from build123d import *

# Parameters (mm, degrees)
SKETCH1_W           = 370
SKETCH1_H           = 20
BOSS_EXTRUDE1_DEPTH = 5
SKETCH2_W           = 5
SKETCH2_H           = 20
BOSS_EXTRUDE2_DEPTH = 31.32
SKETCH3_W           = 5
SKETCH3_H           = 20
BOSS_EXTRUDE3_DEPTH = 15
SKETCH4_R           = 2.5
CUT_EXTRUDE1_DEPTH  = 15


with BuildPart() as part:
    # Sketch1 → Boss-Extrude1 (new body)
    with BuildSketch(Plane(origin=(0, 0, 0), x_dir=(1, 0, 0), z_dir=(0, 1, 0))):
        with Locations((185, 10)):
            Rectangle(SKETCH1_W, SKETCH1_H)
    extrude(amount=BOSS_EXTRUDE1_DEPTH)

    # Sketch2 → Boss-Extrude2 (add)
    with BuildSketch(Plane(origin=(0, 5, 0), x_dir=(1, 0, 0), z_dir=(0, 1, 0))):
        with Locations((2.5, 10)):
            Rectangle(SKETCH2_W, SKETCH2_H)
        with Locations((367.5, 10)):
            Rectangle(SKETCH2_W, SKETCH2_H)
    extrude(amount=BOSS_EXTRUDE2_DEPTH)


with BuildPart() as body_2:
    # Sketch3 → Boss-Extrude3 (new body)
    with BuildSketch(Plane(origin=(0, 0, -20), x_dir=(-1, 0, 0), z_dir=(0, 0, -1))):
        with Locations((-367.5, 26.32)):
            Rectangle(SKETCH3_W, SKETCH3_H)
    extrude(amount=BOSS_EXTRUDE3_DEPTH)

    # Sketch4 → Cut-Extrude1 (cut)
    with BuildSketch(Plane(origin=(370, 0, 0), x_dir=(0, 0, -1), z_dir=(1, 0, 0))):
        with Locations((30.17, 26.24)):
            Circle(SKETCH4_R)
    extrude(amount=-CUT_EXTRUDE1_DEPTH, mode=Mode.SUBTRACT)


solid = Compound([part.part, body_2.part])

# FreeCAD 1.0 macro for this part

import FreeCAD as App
import Part
import Sketcher
Q = App.Units.Quantity


def add_polygon(sketch, points):
    """Adds a closed chain of lines whose ends are joined by coincident constraints."""
    first, n = sketch.GeometryCount, len(points)
    for a, b in zip(points, points[1:] + points[:1]):
        sketch.addGeometry(Part.LineSegment(App.Vector(*a, 0), App.Vector(*b, 0)), False)
    for i in range(n):
        sketch.addConstraint(Sketcher.Constraint("Coincident", first + i, 2, first + (i + 1) % n, 1))

doc = App.newDocument("Part")
params = doc.addObject("Spreadsheet::Sheet", "Params")
for row, (alias, value) in enumerate([
    ("sketch1_width", "370 mm"),
    ("sketch1_height", "20 mm"),
    ("pad1_length", "5 mm"),
    ("sketch2_width", "5 mm"),
    ("sketch2_height", "20 mm"),
    ("pad2_length", "31.32 mm"),
    ("sketch3_width", "5 mm"),
    ("sketch3_height", "20 mm"),
    ("pad3_length", "15 mm"),
    ("sketch4_diameter", "5 mm"),
    ("pocket1_length", "15 mm"),
], start=1):
    params.set(f"A{row}", alias)
    params.set(f"B{row}", "=" + value)
    params.setAlias(f"B{row}", alias)

body = doc.addObject("PartDesign::Body", "Body")

# Sketch on XZ plane
sketch1 = body.newObject("Sketcher::SketchObject", "Sketch")
sketch1.AttachmentSupport = (doc.getObject("XZ_Plane"), [""])
sketch1.MapMode = "FlatFace"
add_polygon(sketch1, [(0, -20), (0, 0), (370, 0), (370, -20)])  # lines 0-3
sketch1.addConstraint(Sketcher.Constraint("Vertical", 0))
sketch1.addConstraint(Sketcher.Constraint("Horizontal", 1))
sketch1.addConstraint(Sketcher.Constraint("Vertical", 2))
sketch1.addConstraint(Sketcher.Constraint("Horizontal", 3))
sketch1.addConstraint(Sketcher.Constraint("Coincident", 0, 2, -1, 1))
sketch1.addConstraint(Sketcher.Constraint("DistanceX", 1, 1, 1, 2, Q("370 mm")))
sketch1.addConstraint(Sketcher.Constraint("DistanceY", 0, 1, 0, 2, Q("20 mm")))
sketch1.setExpression("Constraints[9]", "Params.sketch1_width")
sketch1.setExpression("Constraints[10]", "Params.sketch1_height")
pad1 = body.newObject("PartDesign::Pad", "Pad")
pad1.Profile = sketch1
pad1.setExpression("Length", "Params.pad1_length")
pad1.Reversed = True

# Sketch on XZ plane
sketch2 = body.newObject("Sketcher::SketchObject", "Sketch001")
sketch2.AttachmentSupport = (doc.getObject("XZ_Plane"), [""])
sketch2.MapMode = "FlatFace"
sketch2.AttachmentOffset = App.Placement(App.Vector(0, 0, -5), App.Rotation())
add_polygon(sketch2, [(0, -20), (0, 0), (5, 0), (5, -20)])  # lines 0-3
add_polygon(sketch2, [(365, -20), (365, 0), (370, 0), (370, -20)])  # lines 4-7
sketch2.addConstraint(Sketcher.Constraint("Vertical", 0))
sketch2.addConstraint(Sketcher.Constraint("Horizontal", 1))
sketch2.addConstraint(Sketcher.Constraint("Vertical", 2))
sketch2.addConstraint(Sketcher.Constraint("Horizontal", 3))
sketch2.addConstraint(Sketcher.Constraint("Vertical", 4))
sketch2.addConstraint(Sketcher.Constraint("Horizontal", 5))
sketch2.addConstraint(Sketcher.Constraint("Vertical", 6))
sketch2.addConstraint(Sketcher.Constraint("Horizontal", 7))
sketch2.addConstraint(Sketcher.Constraint("Coincident", 0, 2, -1, 1))
sketch2.addConstraint(Sketcher.Constraint("PointOnObject", 4, 2, -1))
sketch2.addConstraint(Sketcher.Constraint("Horizontal", 3, 2, 6, 2))
sketch2.addConstraint(Sketcher.Constraint("Equal", 3, 5))
sketch2.addConstraint(Sketcher.Constraint("DistanceX", 1, 1, 1, 2, Q("5 mm")))
sketch2.addConstraint(Sketcher.Constraint("DistanceY", 0, 1, 0, 2, Q("20 mm")))
sketch2.addConstraint(Sketcher.Constraint("DistanceX", -1, 1, 4, 2, Q("365 mm")))
sketch2.setExpression("Constraints[20]", "Params.sketch2_width")
sketch2.setExpression("Constraints[21]", "Params.sketch2_height")
pad2 = body.newObject("PartDesign::Pad", "Pad001")
pad2.Profile = sketch2
pad2.setExpression("Length", "Params.pad2_length")
pad2.Reversed = True
body2 = doc.addObject("PartDesign::Body", "Body001")

# Sketch on XY plane
sketch3 = body2.newObject("Sketcher::SketchObject", "Sketch002")
sketch3.AttachmentSupport = (doc.getObject("XY_Plane001"), [""])
sketch3.MapMode = "FlatFace"
sketch3.AttachmentOffset = App.Placement(App.Vector(0, 0, -20), App.Rotation())
add_polygon(sketch3, [(370, 36), (370, 16), (365, 16), (365, 36)])  # lines 0-3
sketch3.addConstraint(Sketcher.Constraint("Vertical", 0))
sketch3.addConstraint(Sketcher.Constraint("Horizontal", 1))
sketch3.addConstraint(Sketcher.Constraint("Vertical", 2))
sketch3.addConstraint(Sketcher.Constraint("Horizontal", 3))
sketch3.addConstraint(Sketcher.Constraint("DistanceX", 1, 2, 1, 1, Q("5 mm")))
sketch3.addConstraint(Sketcher.Constraint("DistanceY", 0, 2, 0, 1, Q("20 mm")))
sketch3.addConstraint(Sketcher.Constraint("DistanceX", -1, 1, 0, 2, Q("370 mm")))
sketch3.addConstraint(Sketcher.Constraint("DistanceY", -1, 1, 0, 2, Q("16.32 mm")))
sketch3.setExpression("Constraints[8]", "Params.sketch3_width")
sketch3.setExpression("Constraints[9]", "Params.sketch3_height")
pad3 = body2.newObject("PartDesign::Pad", "Pad002")
pad3.Profile = sketch3
pad3.setExpression("Length", "Params.pad3_length")
pad3.Reversed = True

# Sketch on YZ plane
sketch4 = body2.newObject("Sketcher::SketchObject", "Sketch003")
sketch4.AttachmentSupport = (doc.getObject("YZ_Plane001"), [""])
sketch4.MapMode = "FlatFace"
sketch4.AttachmentOffset = App.Placement(App.Vector(0, 0, 370), App.Rotation())
sketch4.addGeometry(Part.Circle(App.Vector(26.2, -30.2, 0), App.Vector(0, 0, 1), 2.5), False)
sketch4.addConstraint(Sketcher.Constraint("Diameter", 0, Q("5 mm")))
sketch4.addConstraint(Sketcher.Constraint("DistanceX", -1, 1, 0, 3, Q("26.24 mm")))
sketch4.addConstraint(Sketcher.Constraint("DistanceY", 0, 3, -1, 1, Q("30.17 mm")))
sketch4.setExpression("Constraints[0]", "Params.sketch4_diameter")
pocket1 = body2.newObject("PartDesign::Pocket", "Pocket")
pocket1.Profile = sketch4
pocket1.setExpression("Length", "Params.pocket1_length")

doc.recompute()
